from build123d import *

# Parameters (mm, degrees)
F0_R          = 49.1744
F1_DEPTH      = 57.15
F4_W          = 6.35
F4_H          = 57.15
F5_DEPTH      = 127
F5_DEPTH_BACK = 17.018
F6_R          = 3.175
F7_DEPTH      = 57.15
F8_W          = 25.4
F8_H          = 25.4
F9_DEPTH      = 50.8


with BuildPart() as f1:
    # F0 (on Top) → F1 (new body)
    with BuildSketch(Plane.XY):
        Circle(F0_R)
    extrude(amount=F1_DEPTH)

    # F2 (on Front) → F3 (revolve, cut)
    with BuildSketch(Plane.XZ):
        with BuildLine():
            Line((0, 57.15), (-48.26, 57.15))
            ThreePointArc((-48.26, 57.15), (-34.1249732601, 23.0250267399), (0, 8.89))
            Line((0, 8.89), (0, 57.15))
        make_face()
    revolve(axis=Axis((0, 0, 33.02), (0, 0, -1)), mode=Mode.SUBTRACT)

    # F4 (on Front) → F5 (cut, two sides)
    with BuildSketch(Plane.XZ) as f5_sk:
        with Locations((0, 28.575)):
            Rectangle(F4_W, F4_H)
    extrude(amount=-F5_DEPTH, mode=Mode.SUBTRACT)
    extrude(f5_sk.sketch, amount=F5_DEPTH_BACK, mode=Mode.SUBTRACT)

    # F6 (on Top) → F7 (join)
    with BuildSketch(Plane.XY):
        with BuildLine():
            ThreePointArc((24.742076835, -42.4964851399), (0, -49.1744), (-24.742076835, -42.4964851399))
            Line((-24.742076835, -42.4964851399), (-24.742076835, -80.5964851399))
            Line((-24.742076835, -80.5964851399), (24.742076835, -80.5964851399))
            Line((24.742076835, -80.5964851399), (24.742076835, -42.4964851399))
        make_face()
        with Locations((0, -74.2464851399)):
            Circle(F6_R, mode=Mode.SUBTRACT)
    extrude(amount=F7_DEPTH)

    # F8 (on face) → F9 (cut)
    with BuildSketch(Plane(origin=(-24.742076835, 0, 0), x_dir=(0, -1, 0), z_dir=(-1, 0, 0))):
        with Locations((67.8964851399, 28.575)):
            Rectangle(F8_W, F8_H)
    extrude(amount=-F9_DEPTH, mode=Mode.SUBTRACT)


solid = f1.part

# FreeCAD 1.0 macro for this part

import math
import FreeCAD as App
import Part
import Sketcher

V = App.Vector
Q = App.Units.Quantity

doc = App.newDocument("Part")
body = doc.addObject("PartDesign::Body", "Body")

sketch1 = body.newObject("Sketcher::SketchObject", "Sketch")
sketch1.AttachmentSupport = (doc.getObject("XY_Plane"), [""])
sketch1.MapMode = "FlatFace"
sketch1.addGeometry(Part.Circle(V(0, 0, 0), V(0, 0, 1), 49), False)
sketch1.addConstraint(Sketcher.Constraint("Coincident", 0, 3, -1, 1))
sketch1.addConstraint(Sketcher.Constraint("Diameter", 0, Q("3.872 in")))
pad1 = body.newObject("PartDesign::Pad", "Pad")
pad1.Profile = sketch1
pad1.Length = Q("2.25 in")

sketch2 = body.newObject("Sketcher::SketchObject", "Sketch001")
sketch2.AttachmentSupport = (doc.getObject("XZ_Plane"), [""])
sketch2.MapMode = "FlatFace"
sketch2.addGeometry(Part.LineSegment(V(0, 57, 0), V(-48, 57, 0)), False)
sketch2.addGeometry(Part.ArcOfCircle(Part.Circle(V(0, 57, 0), V(0, 0, 1), 48), math.radians(180), math.radians(270)), False)
sketch2.addGeometry(Part.LineSegment(V(0, 9, 0), V(0, 57, 0)), False)
sketch2.addConstraint(Sketcher.Constraint("Coincident", 0, 2, 1, 1))
sketch2.addConstraint(Sketcher.Constraint("Coincident", 1, 2, 2, 1))
sketch2.addConstraint(Sketcher.Constraint("Coincident", 2, 2, 0, 1))
sketch2.addConstraint(Sketcher.Constraint("Horizontal", 0))
sketch2.addConstraint(Sketcher.Constraint("Vertical", 2))
sketch2.addConstraint(Sketcher.Constraint("Coincident", 2, 2, 1, 3))
sketch2.addConstraint(Sketcher.Constraint("PointOnObject", 1, 3, -2))
sketch2.addConstraint(Sketcher.Constraint("Radius", 1, Q("1.9 in")))
sketch2.addConstraint(Sketcher.Constraint("DistanceY", -1, 1, 1, 3, Q("2.25 in")))
groove = body.newObject("PartDesign::Groove", "Groove")
groove.Profile = sketch2
groove.ReferenceAxis = (sketch2, ["V_Axis"])
groove.Angle = 360

sketch3 = body.newObject("Sketcher::SketchObject", "Sketch002")
sketch3.AttachmentSupport = (doc.getObject("XZ_Plane"), [""])
sketch3.MapMode = "FlatFace"
sketch3.addGeometry(Part.LineSegment(V(-3, 57, 0), V(-3, 0, 0)), False)
sketch3.addGeometry(Part.LineSegment(V(-3, 0, 0), V(3, 0, 0)), False)
sketch3.addGeometry(Part.LineSegment(V(3, 0, 0), V(3, 57, 0)), False)
sketch3.addGeometry(Part.LineSegment(V(3, 57, 0), V(-3, 57, 0)), False)
sketch3.addConstraint(Sketcher.Constraint("Coincident", 0, 2, 1, 1))
sketch3.addConstraint(Sketcher.Constraint("Coincident", 1, 2, 2, 1))
sketch3.addConstraint(Sketcher.Constraint("Coincident", 2, 2, 3, 1))
sketch3.addConstraint(Sketcher.Constraint("Coincident", 3, 2, 0, 1))
sketch3.addConstraint(Sketcher.Constraint("Vertical", 0))
sketch3.addConstraint(Sketcher.Constraint("Horizontal", 1))
sketch3.addConstraint(Sketcher.Constraint("Vertical", 2))
sketch3.addConstraint(Sketcher.Constraint("Horizontal", 3))
sketch3.addConstraint(Sketcher.Constraint("Symmetric", 0, 2, 1, 2, -1, 1))
sketch3.addConstraint(Sketcher.Constraint("DistanceX", 1, 1, 1, 2, Q("0.25 in")))
sketch3.addConstraint(Sketcher.Constraint("DistanceY", 0, 2, 0, 1, Q("2.25 in")))
pocket1 = body.newObject("PartDesign::Pocket", "Pocket")
pocket1.Profile = sketch3
pocket1.Type = "TwoLengths"
pocket1.Length = Q("5 in")
pocket1.Length2 = Q("0.67 in")

sketch4 = body.newObject("Sketcher::SketchObject", "Sketch003")
sketch4.AttachmentSupport = (doc.getObject("XY_Plane"), [""])
sketch4.MapMode = "FlatFace"
sketch4.addGeometry(Part.ArcOfCircle(Part.Circle(V(0, 0, 0), V(0, 0, 1), 49.2), math.radians(-120), math.radians(-60)), False)
sketch4.addGeometry(Part.LineSegment(V(-24.7, -42.5, 0), V(-24.7, -80.6, 0)), False)
sketch4.addGeometry(Part.LineSegment(V(-24.7, -80.6, 0), V(24.7, -80.6, 0)), False)
sketch4.addGeometry(Part.LineSegment(V(24.7, -80.6, 0), V(24.7, -42.5, 0)), False)
sketch4.addGeometry(Part.Circle(V(0, -74.2, 0), V(0, 0, 1), 3.2), False)
sketch4.addConstraint(Sketcher.Constraint("Coincident", 0, 1, 1, 1))
sketch4.addConstraint(Sketcher.Constraint("Coincident", 1, 2, 2, 1))
sketch4.addConstraint(Sketcher.Constraint("Coincident", 2, 2, 3, 1))
sketch4.addConstraint(Sketcher.Constraint("Coincident", 3, 2, 0, 2))
sketch4.addConstraint(Sketcher.Constraint("Vertical", 1))
sketch4.addConstraint(Sketcher.Constraint("Horizontal", 2))
sketch4.addConstraint(Sketcher.Constraint("Vertical", 3))
sketch4.addConstraint(Sketcher.Constraint("Coincident", 0, 3, -1, 1))
sketch4.addConstraint(Sketcher.Constraint("PointOnObject", 4, 3, -2))
sketch4.addConstraint(Sketcher.Constraint("Horizontal", 0, 1, 3, 2))
sketch4.addConstraint(Sketcher.Constraint("Diameter", 4, Q("0.25 in")))
sketch4.addConstraint(Sketcher.Constraint("DistanceY", 1, 2, 1, 1, Q("1.5 in")))
sketch4.addConstraint(Sketcher.Constraint("Radius", 0, Q("1.936 in")))
sketch4.addConstraint(Sketcher.Constraint("DistanceY", 4, 3, 0, 1, Q("1.25 in")))
sketch4.addConstraint(Sketcher.Constraint("DistanceX", 2, 1, 2, 2, Q("49.484154 mm")))
pad2 = body.newObject("PartDesign::Pad", "Pad001")
pad2.Profile = sketch4
pad2.Length = Q("2.25 in")

sketch5 = body.newObject("Sketcher::SketchObject", "Sketch004")
sketch5.AttachmentSupport = (doc.getObject("YZ_Plane"), [""])
sketch5.MapMode = "FlatFace"
sketch5.AttachmentOffset = App.Placement(V(0, 0, -24.742077), App.Rotation())
sketch5.addGeometry(Part.LineSegment(V(-55, 41, 0), V(-55, 16, 0)), False)
sketch5.addGeometry(Part.LineSegment(V(-55, 16, 0), V(-81, 16, 0)), False)
sketch5.addGeometry(Part.LineSegment(V(-81, 16, 0), V(-81, 41, 0)), False)
sketch5.addGeometry(Part.LineSegment(V(-81, 41, 0), V(-55, 41, 0)), False)
sketch5.addConstraint(Sketcher.Constraint("Coincident", 0, 2, 1, 1))
sketch5.addConstraint(Sketcher.Constraint("Coincident", 1, 2, 2, 1))
sketch5.addConstraint(Sketcher.Constraint("Coincident", 2, 2, 3, 1))
sketch5.addConstraint(Sketcher.Constraint("Coincident", 3, 2, 0, 1))
sketch5.addConstraint(Sketcher.Constraint("Vertical", 0))
sketch5.addConstraint(Sketcher.Constraint("Horizontal", 1))
sketch5.addConstraint(Sketcher.Constraint("Vertical", 2))
sketch5.addConstraint(Sketcher.Constraint("Horizontal", 3))
sketch5.addConstraint(Sketcher.Constraint("Equal", 3, 0))
sketch5.addConstraint(Sketcher.Constraint("DistanceX", 1, 2, 1, 1, Q("1 in")))
sketch5.addConstraint(Sketcher.Constraint("DistanceY", -1, 1, 0, 2, Q("0.625 in")))
sketch5.addConstraint(Sketcher.Constraint("DistanceX", 0, 2, -1, 1, Q("55.196485 mm")))
pocket2 = body.newObject("PartDesign::Pocket", "Pocket001")
pocket2.Profile = sketch5
pocket2.Length = Q("2 in")
pocket2.Reversed = True

doc.recompute()
